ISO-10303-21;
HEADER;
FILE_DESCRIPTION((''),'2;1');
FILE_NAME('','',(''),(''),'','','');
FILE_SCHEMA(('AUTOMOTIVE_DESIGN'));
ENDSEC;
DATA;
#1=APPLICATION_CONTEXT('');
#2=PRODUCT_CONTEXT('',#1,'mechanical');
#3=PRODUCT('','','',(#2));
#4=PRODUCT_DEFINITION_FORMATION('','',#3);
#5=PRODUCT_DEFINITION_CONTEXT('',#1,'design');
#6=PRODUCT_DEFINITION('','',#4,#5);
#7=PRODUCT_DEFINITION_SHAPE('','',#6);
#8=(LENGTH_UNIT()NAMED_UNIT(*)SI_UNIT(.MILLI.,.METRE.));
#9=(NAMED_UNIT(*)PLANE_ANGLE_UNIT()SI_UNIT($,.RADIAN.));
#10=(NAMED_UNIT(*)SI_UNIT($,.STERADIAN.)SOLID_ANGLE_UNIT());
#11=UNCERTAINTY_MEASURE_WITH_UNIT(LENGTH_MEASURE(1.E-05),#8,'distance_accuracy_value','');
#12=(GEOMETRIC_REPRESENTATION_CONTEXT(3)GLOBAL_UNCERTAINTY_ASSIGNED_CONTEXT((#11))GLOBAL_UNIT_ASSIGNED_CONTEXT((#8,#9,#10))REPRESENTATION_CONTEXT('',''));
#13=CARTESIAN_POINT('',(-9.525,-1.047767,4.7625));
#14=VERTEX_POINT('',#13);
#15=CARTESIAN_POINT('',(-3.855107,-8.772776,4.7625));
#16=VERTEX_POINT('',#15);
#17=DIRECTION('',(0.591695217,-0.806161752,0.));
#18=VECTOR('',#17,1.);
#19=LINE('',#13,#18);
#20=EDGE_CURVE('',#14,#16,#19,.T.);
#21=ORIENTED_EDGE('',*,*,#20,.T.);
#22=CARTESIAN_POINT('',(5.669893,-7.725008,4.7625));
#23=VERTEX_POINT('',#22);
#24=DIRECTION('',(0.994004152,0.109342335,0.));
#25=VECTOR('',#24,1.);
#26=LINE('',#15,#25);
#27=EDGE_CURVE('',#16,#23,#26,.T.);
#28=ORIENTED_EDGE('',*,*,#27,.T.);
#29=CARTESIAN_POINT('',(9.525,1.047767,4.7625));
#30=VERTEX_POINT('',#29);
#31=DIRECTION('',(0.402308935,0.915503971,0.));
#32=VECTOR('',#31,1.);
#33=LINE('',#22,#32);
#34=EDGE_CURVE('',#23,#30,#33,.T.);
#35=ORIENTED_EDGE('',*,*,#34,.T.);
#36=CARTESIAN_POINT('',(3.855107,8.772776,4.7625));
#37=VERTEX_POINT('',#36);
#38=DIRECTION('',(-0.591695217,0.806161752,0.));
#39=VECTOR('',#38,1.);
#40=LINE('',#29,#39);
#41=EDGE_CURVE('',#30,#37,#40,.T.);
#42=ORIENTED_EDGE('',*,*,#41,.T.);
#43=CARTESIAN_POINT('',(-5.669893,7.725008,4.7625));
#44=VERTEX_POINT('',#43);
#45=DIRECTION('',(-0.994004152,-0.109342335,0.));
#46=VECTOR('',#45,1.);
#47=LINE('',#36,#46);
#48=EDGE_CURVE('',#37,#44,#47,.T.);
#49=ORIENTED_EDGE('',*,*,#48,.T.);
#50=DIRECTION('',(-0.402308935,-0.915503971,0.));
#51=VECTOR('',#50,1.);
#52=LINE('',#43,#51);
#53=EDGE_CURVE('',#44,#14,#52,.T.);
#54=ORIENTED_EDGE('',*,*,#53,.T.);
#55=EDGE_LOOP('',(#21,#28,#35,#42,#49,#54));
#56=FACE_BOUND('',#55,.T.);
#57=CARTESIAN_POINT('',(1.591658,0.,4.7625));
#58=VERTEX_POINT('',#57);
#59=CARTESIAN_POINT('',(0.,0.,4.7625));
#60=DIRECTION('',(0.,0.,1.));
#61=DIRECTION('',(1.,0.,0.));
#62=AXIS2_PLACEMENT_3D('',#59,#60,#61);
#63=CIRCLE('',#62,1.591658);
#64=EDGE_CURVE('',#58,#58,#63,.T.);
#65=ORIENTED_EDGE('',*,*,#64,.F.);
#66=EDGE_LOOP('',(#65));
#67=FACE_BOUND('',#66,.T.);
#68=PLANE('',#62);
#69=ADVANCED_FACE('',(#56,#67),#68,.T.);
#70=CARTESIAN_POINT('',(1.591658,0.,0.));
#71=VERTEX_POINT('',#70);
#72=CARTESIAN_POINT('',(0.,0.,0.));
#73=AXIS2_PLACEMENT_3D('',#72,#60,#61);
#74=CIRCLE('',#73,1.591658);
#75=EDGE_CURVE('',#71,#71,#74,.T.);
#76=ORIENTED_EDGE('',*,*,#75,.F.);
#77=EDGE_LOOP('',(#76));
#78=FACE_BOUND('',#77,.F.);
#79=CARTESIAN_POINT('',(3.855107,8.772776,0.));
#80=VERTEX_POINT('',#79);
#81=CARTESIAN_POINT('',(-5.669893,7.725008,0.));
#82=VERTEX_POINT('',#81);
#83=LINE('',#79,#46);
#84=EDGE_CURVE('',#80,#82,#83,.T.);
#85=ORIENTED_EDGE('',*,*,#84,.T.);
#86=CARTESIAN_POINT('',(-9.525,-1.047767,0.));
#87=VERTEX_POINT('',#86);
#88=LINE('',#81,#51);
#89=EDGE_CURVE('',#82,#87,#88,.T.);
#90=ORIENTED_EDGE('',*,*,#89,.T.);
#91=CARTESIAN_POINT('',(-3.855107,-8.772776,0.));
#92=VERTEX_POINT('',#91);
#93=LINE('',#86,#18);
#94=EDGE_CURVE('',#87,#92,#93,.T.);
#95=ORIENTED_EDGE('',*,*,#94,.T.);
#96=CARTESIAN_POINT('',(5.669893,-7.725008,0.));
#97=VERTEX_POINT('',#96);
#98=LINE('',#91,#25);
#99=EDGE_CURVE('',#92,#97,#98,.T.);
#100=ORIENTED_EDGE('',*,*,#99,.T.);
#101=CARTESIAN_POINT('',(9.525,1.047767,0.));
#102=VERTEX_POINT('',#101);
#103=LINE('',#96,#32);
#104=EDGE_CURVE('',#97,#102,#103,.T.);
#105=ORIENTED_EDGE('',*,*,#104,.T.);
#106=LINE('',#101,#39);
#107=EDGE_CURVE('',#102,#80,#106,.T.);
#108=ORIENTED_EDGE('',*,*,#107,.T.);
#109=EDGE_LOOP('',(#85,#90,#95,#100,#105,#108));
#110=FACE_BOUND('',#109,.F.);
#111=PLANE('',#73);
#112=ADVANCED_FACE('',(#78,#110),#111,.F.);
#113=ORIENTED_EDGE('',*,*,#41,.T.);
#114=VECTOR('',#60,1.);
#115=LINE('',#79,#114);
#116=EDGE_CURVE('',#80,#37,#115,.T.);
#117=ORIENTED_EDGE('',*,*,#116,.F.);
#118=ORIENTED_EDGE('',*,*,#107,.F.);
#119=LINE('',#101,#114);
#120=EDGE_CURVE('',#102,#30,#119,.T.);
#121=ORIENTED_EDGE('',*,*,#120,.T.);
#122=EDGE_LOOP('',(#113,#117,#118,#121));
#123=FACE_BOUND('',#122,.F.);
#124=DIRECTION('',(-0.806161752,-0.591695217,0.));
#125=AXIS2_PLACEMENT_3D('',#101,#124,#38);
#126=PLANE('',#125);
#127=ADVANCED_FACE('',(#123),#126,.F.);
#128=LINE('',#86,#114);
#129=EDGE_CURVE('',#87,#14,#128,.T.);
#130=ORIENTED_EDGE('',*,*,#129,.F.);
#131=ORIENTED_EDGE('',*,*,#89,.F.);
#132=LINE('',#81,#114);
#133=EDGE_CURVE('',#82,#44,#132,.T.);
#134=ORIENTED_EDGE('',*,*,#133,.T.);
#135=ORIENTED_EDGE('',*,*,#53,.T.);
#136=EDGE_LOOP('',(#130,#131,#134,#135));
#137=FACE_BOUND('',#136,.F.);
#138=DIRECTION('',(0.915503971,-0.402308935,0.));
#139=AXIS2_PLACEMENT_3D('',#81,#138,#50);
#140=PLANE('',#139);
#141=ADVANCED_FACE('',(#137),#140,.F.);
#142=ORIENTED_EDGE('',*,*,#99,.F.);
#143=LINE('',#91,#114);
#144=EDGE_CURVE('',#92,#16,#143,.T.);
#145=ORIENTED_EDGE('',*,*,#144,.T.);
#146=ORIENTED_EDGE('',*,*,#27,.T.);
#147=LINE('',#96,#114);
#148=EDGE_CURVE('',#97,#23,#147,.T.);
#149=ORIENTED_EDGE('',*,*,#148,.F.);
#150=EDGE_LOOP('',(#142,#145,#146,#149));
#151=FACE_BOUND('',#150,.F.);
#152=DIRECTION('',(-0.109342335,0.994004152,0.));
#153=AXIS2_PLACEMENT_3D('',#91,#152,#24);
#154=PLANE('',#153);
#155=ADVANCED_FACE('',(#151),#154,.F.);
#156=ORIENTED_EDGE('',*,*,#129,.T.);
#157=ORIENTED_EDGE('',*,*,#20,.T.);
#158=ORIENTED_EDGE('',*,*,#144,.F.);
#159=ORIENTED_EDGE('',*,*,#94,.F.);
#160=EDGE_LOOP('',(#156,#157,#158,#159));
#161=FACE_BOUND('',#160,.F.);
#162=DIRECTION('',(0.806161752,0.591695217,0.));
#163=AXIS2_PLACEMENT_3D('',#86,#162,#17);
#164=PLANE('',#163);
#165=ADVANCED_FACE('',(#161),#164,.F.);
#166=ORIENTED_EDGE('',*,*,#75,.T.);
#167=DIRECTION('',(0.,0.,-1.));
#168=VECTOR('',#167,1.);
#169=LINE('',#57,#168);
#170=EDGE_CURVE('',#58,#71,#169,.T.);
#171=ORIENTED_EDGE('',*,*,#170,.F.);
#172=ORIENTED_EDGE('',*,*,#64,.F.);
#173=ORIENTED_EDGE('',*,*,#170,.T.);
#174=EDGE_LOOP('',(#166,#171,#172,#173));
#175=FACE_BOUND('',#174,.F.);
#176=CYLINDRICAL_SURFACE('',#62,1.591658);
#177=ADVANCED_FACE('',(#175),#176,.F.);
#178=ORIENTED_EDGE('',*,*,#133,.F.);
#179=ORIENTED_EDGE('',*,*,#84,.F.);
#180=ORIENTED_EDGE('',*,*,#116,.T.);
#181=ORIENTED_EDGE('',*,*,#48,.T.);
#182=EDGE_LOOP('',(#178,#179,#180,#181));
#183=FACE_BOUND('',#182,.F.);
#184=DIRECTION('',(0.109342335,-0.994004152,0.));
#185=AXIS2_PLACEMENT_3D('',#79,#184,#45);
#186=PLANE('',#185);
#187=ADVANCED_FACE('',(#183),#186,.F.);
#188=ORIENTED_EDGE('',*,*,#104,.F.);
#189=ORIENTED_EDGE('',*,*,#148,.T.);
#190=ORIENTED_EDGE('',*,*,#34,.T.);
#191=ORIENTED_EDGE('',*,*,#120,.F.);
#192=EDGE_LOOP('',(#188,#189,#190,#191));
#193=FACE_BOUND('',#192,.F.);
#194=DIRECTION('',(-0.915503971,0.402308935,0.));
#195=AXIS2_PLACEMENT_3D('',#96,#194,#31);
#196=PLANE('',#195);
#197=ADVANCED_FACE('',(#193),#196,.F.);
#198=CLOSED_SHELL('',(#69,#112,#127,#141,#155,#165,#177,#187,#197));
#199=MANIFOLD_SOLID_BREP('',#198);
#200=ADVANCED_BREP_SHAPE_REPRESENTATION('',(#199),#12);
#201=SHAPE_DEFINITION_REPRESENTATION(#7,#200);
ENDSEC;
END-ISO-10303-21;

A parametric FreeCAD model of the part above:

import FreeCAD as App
import Part
import Sketcher

V = App.Vector
Q = App.Units.Quantity

doc = App.newDocument("Part")
params = doc.addObject("Spreadsheet::Sheet", "Params")
for row, (alias, value) in enumerate([
    ("pad1_length", "0.1875 in"),
    ("pocket1_length", "0.375 in"),
], start=1):
    params.set(f"A{row}", alias)
    params.set(f"B{row}", "=" + value)
    params.setAlias(f"B{row}", alias)

body = doc.addObject("PartDesign::Body", "Body")

sketch1 = body.newObject("Sketcher::SketchObject", "Sketch")
sketch1.AttachmentSupport = (doc.getObject("XY_Plane"), [""])
sketch1.MapMode = "FlatFace"
sketch1.addGeometry([
    Part.LineSegment(V(-10, -1, 0), V(-4, -9, 0)),
    Part.LineSegment(V(-4, -9, 0), V(6, -8, 0)),
    Part.LineSegment(V(6, -8, 0), V(10, 1, 0)),
    Part.LineSegment(V(10, 1, 0), V(4, 9, 0)),
    Part.LineSegment(V(4, 9, 0), V(-6, 8, 0)),
    Part.LineSegment(V(-6, 8, 0), V(-10, -1, 0)),
], False)
sketch1.addConstraint([
    Sketcher.Constraint("Coincident", 0, 2, 1, 1),
    Sketcher.Constraint("Coincident", 1, 2, 2, 1),
    Sketcher.Constraint("Coincident", 2, 2, 3, 1),
    Sketcher.Constraint("Coincident", 3, 2, 4, 1),
    Sketcher.Constraint("Coincident", 4, 2, 5, 1),
    Sketcher.Constraint("Coincident", 5, 2, 0, 1),
    Sketcher.Constraint("Symmetric", 0, 2, 3, 2, -1, 1),
    Sketcher.Constraint("Symmetric", 1, 2, 4, 2, -1, 1),
    Sketcher.Constraint("Symmetric", 2, 2, 5, 2, -1, 1),
    Sketcher.Constraint("Equal", 0, 1),
    Sketcher.Constraint("Equal", 1, 2),
    Sketcher.Constraint("DistanceX", 5, 2, 2, 2, Q("0.75 in")),
    Sketcher.Constraint("DistanceX", 0, 2, 1, 2, Q("0.375 in")),
    Sketcher.Constraint("DistanceY", 0, 2, 1, 2, Q("1.047768 mm")),
    Sketcher.Constraint("DistanceY", 2, 2, 3, 2, Q("7.725009 mm")),
])
pad1 = body.newObject("PartDesign::Pad", "Pad")
pad1.Profile = sketch1
pad1.setExpression("Length", "Params.pad1_length")

sketch2 = body.newObject("Sketcher::SketchObject", "Sketch001")
sketch2.AttachmentSupport = (doc.getObject("XY_Plane"), [""])
sketch2.MapMode = "FlatFace"
sketch2.AttachmentOffset = App.Placement(V(0, 0, 0.1875 * 25.4), App.Rotation())
sketch2.addGeometry(Part.Circle(V(0, 0, 0), V(0, 0, 1), 1.6), False)
sketch2.addConstraint([
    Sketcher.Constraint("Coincident", 0, 3, -1, 1),
    Sketcher.Constraint("Diameter", 0, Q("3.183316 mm")),
])
pocket1 = body.newObject("PartDesign::Pocket", "Pocket")
pocket1.Profile = sketch2
pocket1.setExpression("Length", "Params.pocket1_length")

doc.recompute()
